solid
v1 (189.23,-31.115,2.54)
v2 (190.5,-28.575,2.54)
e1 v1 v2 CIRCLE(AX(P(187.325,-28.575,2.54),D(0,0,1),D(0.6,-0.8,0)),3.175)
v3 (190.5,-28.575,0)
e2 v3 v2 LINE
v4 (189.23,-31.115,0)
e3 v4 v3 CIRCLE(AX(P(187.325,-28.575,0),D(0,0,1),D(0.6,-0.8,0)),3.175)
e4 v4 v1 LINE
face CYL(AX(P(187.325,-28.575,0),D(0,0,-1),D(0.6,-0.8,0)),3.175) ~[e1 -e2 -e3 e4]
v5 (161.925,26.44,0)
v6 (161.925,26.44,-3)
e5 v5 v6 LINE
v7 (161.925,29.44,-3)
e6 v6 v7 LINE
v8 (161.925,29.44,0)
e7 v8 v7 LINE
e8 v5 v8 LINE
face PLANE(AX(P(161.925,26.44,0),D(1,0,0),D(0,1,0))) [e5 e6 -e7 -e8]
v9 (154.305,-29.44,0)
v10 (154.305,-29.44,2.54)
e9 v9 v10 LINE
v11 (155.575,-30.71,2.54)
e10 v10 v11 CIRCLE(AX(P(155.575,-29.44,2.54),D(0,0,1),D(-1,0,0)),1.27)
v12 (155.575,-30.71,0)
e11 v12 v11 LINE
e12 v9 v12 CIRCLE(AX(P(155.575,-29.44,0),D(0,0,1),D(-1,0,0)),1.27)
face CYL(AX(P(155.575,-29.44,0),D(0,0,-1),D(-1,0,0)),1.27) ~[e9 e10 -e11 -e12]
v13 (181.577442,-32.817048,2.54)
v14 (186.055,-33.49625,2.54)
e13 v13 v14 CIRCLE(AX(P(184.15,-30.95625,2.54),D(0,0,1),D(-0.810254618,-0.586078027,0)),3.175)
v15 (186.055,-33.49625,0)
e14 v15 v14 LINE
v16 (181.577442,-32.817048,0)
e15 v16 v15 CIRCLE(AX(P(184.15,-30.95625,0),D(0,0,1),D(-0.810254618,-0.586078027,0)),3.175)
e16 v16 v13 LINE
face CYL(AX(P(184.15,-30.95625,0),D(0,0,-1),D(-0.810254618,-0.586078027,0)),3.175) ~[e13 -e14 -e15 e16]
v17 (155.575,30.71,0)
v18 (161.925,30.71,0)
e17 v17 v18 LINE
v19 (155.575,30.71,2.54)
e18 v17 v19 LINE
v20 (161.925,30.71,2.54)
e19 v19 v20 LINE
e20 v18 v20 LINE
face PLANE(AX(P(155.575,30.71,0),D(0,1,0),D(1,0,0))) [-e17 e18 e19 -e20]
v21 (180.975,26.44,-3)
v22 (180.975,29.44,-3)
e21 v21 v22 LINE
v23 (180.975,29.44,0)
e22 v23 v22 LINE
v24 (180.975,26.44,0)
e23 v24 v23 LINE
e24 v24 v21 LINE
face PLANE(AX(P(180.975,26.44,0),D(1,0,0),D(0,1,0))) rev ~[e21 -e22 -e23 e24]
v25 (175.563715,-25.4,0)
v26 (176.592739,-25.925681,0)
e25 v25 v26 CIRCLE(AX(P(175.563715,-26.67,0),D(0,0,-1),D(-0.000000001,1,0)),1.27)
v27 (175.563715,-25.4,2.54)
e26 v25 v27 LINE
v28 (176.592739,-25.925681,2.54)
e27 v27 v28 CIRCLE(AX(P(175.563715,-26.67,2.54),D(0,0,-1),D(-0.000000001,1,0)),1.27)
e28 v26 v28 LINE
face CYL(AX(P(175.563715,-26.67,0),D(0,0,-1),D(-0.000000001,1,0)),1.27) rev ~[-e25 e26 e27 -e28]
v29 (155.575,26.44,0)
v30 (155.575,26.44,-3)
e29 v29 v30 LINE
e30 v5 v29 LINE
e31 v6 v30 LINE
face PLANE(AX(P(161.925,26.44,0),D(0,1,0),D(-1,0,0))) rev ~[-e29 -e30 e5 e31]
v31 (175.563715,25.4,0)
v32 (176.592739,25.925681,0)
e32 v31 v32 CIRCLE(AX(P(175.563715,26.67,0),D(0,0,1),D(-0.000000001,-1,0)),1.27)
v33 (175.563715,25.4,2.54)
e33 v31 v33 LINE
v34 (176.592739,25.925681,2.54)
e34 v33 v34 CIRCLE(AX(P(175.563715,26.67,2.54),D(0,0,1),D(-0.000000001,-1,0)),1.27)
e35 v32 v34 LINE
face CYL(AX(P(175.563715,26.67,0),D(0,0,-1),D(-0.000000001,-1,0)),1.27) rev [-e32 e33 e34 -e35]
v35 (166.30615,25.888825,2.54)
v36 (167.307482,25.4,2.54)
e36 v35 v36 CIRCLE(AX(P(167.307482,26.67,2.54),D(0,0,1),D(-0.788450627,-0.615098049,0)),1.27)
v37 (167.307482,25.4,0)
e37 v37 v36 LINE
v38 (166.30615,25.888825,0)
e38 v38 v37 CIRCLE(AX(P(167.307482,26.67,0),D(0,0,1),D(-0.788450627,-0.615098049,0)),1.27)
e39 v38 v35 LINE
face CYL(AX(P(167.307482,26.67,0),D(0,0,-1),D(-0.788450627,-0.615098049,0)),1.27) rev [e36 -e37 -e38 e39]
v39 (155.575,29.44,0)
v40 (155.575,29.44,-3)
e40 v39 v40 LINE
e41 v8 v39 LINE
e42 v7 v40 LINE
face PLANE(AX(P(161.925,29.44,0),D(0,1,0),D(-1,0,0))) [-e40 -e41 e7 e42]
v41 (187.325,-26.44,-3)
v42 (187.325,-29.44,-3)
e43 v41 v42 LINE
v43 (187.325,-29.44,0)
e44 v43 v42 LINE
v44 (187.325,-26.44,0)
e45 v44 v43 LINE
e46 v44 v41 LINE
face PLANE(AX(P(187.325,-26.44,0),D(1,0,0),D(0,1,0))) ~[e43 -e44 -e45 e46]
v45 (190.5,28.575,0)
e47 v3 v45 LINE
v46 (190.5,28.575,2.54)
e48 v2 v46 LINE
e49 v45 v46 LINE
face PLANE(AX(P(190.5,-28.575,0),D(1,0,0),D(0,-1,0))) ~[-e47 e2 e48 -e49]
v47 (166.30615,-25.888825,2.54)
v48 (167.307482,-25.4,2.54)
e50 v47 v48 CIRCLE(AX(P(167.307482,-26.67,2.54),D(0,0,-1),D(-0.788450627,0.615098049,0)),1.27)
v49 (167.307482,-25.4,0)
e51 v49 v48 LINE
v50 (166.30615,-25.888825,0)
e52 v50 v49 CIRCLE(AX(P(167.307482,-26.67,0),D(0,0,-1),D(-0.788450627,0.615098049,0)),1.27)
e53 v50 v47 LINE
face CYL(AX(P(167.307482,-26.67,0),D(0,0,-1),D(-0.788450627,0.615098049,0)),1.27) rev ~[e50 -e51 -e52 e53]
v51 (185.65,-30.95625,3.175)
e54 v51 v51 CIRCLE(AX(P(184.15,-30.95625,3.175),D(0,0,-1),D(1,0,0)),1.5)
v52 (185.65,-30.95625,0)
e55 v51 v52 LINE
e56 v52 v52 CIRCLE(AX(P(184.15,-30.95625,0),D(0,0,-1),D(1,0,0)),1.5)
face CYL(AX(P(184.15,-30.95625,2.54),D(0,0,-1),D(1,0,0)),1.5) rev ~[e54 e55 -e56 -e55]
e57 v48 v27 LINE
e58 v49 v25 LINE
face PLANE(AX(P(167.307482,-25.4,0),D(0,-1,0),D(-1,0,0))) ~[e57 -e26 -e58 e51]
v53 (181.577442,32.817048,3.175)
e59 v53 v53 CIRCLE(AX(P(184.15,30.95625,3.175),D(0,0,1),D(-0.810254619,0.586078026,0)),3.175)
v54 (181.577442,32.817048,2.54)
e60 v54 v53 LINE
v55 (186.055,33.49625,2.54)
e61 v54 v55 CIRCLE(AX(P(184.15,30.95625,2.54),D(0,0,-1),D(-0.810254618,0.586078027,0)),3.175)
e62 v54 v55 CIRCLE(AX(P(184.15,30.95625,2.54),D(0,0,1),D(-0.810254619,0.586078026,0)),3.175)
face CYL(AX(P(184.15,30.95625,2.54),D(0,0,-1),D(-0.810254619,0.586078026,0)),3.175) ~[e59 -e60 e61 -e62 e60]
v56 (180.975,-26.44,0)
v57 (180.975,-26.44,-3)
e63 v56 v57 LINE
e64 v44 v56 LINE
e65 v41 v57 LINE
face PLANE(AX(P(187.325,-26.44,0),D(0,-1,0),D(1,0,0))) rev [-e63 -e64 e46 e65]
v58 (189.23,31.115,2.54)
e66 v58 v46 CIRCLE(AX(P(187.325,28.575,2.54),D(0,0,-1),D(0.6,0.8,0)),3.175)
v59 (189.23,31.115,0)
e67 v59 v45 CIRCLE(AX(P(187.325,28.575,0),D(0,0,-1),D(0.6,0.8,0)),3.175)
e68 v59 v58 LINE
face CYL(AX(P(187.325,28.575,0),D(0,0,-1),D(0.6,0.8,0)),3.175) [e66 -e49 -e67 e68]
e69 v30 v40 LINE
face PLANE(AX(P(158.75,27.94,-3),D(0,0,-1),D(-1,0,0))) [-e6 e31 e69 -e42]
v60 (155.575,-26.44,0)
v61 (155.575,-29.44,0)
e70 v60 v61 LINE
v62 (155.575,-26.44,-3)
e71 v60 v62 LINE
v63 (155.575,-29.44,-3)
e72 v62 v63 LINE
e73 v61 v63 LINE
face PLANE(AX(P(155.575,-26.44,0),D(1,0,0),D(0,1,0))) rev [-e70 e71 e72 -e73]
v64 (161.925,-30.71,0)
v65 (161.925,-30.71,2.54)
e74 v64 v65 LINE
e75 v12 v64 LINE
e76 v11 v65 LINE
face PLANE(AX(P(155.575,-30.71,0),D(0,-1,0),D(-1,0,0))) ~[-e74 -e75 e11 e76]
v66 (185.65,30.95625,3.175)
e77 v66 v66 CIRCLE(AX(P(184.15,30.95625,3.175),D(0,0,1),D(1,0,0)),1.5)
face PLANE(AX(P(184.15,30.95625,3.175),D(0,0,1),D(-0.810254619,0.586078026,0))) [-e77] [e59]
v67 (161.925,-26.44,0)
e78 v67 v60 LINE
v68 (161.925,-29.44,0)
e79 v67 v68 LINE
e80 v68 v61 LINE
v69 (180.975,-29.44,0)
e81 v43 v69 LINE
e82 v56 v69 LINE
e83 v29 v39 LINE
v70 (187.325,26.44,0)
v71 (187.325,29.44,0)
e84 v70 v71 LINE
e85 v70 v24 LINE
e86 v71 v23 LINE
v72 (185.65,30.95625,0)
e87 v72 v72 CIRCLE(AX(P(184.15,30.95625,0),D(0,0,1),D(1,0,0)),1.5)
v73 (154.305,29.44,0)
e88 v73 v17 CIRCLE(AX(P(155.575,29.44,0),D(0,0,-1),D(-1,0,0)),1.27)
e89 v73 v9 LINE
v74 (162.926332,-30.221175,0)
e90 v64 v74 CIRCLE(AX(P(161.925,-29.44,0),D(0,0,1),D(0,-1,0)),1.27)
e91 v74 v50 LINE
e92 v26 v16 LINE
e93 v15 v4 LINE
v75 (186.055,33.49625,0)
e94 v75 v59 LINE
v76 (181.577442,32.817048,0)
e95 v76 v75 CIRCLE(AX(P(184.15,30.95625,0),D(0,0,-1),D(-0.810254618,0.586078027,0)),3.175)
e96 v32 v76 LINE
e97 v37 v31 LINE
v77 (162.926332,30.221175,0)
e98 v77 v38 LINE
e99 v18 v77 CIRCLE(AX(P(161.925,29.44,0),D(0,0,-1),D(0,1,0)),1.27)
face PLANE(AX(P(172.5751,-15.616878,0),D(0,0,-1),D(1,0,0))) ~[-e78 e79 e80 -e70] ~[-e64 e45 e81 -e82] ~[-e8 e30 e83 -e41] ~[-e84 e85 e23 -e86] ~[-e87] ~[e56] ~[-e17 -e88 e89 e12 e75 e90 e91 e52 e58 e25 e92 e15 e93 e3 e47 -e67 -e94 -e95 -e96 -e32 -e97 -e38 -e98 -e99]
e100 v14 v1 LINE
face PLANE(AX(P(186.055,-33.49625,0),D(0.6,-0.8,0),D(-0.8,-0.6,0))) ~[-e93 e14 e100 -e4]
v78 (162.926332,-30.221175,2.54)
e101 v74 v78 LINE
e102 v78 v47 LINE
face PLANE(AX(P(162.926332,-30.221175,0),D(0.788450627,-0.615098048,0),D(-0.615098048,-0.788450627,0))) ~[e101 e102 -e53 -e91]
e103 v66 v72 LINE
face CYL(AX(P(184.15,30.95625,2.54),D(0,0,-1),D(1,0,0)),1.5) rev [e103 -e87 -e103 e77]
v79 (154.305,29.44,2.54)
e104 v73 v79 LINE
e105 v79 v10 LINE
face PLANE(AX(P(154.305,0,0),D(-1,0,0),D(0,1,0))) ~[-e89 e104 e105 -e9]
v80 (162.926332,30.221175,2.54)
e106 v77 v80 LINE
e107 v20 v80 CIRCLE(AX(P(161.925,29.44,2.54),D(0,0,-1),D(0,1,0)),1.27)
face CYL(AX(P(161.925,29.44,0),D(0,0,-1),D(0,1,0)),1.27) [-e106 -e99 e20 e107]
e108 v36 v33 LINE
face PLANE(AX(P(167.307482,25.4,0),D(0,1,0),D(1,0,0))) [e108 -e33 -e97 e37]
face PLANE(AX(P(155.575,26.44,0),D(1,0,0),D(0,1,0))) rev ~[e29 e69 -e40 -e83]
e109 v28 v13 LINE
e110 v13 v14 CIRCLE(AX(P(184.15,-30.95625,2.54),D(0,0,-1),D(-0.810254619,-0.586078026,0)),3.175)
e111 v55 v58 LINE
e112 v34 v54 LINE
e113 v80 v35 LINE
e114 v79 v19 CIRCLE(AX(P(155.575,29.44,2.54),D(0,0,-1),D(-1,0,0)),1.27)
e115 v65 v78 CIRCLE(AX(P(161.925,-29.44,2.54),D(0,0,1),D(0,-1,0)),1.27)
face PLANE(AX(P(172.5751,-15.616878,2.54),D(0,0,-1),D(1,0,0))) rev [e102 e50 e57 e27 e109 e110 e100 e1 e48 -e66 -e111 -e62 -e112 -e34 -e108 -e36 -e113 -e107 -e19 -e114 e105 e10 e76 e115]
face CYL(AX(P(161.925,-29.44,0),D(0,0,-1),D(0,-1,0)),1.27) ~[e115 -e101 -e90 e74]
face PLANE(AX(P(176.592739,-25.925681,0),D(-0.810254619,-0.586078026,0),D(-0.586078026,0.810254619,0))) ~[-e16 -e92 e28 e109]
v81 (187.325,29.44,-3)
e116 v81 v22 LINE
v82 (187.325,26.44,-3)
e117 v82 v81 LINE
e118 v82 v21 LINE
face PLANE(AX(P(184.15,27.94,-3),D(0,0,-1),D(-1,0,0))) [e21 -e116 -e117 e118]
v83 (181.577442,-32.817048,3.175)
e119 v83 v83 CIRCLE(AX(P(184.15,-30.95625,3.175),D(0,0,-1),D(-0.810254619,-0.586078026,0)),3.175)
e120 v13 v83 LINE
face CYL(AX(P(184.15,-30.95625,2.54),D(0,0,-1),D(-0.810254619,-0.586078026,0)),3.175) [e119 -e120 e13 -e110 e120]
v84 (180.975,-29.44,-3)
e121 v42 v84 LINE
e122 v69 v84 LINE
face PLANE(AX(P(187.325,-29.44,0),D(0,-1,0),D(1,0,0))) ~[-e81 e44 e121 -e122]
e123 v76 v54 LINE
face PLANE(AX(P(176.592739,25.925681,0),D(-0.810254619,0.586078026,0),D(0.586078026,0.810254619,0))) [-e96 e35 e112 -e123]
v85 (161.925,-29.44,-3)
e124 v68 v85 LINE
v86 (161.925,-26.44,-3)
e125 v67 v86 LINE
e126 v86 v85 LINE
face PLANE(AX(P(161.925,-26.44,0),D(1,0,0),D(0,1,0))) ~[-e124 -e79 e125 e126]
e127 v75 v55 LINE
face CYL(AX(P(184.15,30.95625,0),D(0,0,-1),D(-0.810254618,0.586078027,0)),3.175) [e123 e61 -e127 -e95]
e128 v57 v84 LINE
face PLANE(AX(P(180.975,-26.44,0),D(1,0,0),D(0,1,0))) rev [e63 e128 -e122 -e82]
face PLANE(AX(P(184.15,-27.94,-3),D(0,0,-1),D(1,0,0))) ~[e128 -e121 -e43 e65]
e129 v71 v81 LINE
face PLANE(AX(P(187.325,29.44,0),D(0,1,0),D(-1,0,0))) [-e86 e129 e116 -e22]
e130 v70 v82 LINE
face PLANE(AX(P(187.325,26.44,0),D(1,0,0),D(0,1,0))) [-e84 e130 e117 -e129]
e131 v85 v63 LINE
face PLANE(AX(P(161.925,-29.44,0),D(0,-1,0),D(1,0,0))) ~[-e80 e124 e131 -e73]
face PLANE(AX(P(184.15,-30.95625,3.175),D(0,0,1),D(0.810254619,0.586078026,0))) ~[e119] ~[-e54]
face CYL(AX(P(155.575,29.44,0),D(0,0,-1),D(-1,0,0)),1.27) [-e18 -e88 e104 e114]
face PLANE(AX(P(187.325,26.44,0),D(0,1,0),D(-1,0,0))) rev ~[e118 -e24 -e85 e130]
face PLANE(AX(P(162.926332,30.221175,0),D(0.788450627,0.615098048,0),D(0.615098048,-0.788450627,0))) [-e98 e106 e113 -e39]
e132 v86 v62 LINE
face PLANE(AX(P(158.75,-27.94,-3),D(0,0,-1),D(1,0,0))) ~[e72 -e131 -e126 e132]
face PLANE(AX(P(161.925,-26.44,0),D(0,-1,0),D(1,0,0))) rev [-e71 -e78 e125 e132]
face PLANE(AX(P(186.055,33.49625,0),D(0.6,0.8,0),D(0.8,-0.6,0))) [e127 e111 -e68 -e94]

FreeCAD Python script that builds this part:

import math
import FreeCAD as App
import Part
import Sketcher
Q = App.Units.Quantity

doc = App.newDocument("Part")
body = doc.addObject("PartDesign::Body", "Body")

# Sketch on XY plane
sketch1 = body.newObject("Sketcher::SketchObject", "Sketch")
sketch1.AttachmentSupport = (doc.getObject("XY_Plane"), [""])
sketch1.MapMode = "FlatFace"
sketch1.addGeometry([
    Part.LineSegment(App.Vector(189.2, 31.1, 0), App.Vector(186.1, 33.5, 0)),  # 0
    Part.ArcOfCircle(Part.Circle(App.Vector(184.2, 31, 0), App.Vector(0, 0, 1), 3.2), math.radians(53), math.radians(144)),  # 1
    Part.LineSegment(App.Vector(181.6, 32.8, 0), App.Vector(176.6, 25.9, 0)),  # 2
    Part.ArcOfCircle(Part.Circle(App.Vector(175.6, 26.7, 0), App.Vector(0, 0, 1), 1.3), math.radians(-90), math.radians(-36)),  # 3
    Part.LineSegment(App.Vector(175.6, 25.4, 0), App.Vector(167.3, 25.4, 0)),  # 4
    Part.ArcOfCircle(Part.Circle(App.Vector(167.3, 26.7, 0), App.Vector(0, 0, 1), 1.3), math.radians(-142), math.radians(-90)),  # 5
    Part.LineSegment(App.Vector(166.3, 25.9, 0), App.Vector(162.9, 30.2, 0)),  # 6
    Part.ArcOfCircle(Part.Circle(App.Vector(161.9, 29.4, 0), App.Vector(0, 0, 1), 1.3), math.radians(38), math.radians(90)),  # 7
    Part.LineSegment(App.Vector(161.9, 30.7, 0), App.Vector(155.6, 30.7, 0)),  # 8
    Part.ArcOfCircle(Part.Circle(App.Vector(155.6, 29.4, 0), App.Vector(0, 0, 1), 1.3), math.radians(90), math.radians(180)),  # 9
    Part.LineSegment(App.Vector(154.3, 29.4, 0), App.Vector(154.3, 0, 0)),  # 10
    Part.LineSegment(App.Vector(154.3, 0, 0), App.Vector(190.5, 0, 0)),  # 11
    Part.LineSegment(App.Vector(190.5, 0, 0), App.Vector(190.5, 28.6, 0)),  # 12
    Part.ArcOfCircle(Part.Circle(App.Vector(187.3, 28.6, 0), App.Vector(0, 0, 1), 3.2), math.radians(0), math.radians(53)),  # 13
    Part.Circle(App.Vector(184.2, 31, 0), App.Vector(0, 0, 1), 1.5),  # 14
], False)
sketch1.addConstraint([
    Sketcher.Constraint("Tangent", 0, 2, 1, 1),
    Sketcher.Constraint("Tangent", 1, 2, 2, 1),
    Sketcher.Constraint("Tangent", 2, 2, 3, 2),
    Sketcher.Constraint("Tangent", 3, 1, 4, 1),
    Sketcher.Constraint("Tangent", 4, 2, 5, 2),
    Sketcher.Constraint("Tangent", 5, 1, 6, 1),
    Sketcher.Constraint("Tangent", 6, 2, 7, 1),
    Sketcher.Constraint("Tangent", 7, 2, 8, 1),
    Sketcher.Constraint("Tangent", 8, 2, 9, 1),
    Sketcher.Constraint("Tangent", 9, 2, 10, 1),
    Sketcher.Constraint("Coincident", 10, 2, 11, 1),
    Sketcher.Constraint("Coincident", 11, 2, 12, 1),
    Sketcher.Constraint("Tangent", 12, 2, 13, 1),
    Sketcher.Constraint("Tangent", 13, 2, 0, 1),
    Sketcher.Constraint("Horizontal", 4),
    Sketcher.Constraint("Horizontal", 8),
    Sketcher.Constraint("Vertical", 10),
    Sketcher.Constraint("Horizontal", 11),
    Sketcher.Constraint("Vertical", 12),
    Sketcher.Constraint("Coincident", 14, 3, 1, 3),
    Sketcher.Constraint("Equal", 3, 5),
    Sketcher.Constraint("Equal", 5, 7),
    Sketcher.Constraint("Equal", 7, 9),
    Sketcher.Constraint("Equal", 1, 13),
    Sketcher.Constraint("PointOnObject", 10, 2, -1),
    Sketcher.Constraint("Radius", 3, Q("0.05 in")),
    Sketcher.Constraint("DistanceY", -1, 1, 3, 1, Q("1 in")),
    Sketcher.Constraint("Radius", 1, Q("0.125 in")),
    Sketcher.Constraint("DistanceX", 7, 3, 13, 3, Q("1 in")),
    Sketcher.Constraint("DistanceX", 8, 2, 8, 1, Q("0.25 in")),
    Sketcher.Constraint("DistanceX", -1, 1, 11, 2, Q("7.5 in")),
    Sketcher.Constraint("DistanceY", 14, 3, 0, 2, Q("0.1 in")),
    Sketcher.Constraint("DistanceX", 14, 3, 13, 2, Q("0.2 in")),
    Sketcher.Constraint("Diameter", 14, Q("3 mm")),
    Sketcher.Constraint("DistanceY", 12, 1, 12, 2, Q("1.125 in")),
    Sketcher.Constraint("DistanceY", 10, 2, 10, 1, Q("29.44 mm")),
    Sketcher.Constraint("DistanceX", 4, 2, 4, 1, Q("8.256233 mm")),
    Sketcher.Constraint("DistanceX", -1, 1, 1, 2, Q("181.577442 mm")),
])
pad1 = body.newObject("PartDesign::Pad", "Pad")
pad1.Profile = sketch1
pad1.Length = Q("0.1 in")

# Sketch on XY plane
sketch2 = body.newObject("Sketcher::SketchObject", "Sketch001")
sketch2.AttachmentSupport = (doc.getObject("XY_Plane"), [""])
sketch2.MapMode = "FlatFace"
sketch2.AttachmentOffset = App.Placement(App.Vector(0, 0, 0.1 * 25.4), App.Rotation())
sketch2.addGeometry([
    Part.Circle(App.Vector(184.2, 31, 0), App.Vector(0, 0, 1), 3.2),
    Part.Circle(App.Vector(184.2, 31, 0), App.Vector(0, 0, 1), 1.5),
], False)
sketch2.addConstraint([
    Sketcher.Constraint("Coincident", 1, 3, 0, 3),
    Sketcher.Constraint("Diameter", 0, Q("0.25 in")),
    Sketcher.Constraint("Diameter", 1, Q("3 mm")),
    Sketcher.Constraint("DistanceX", -1, 1, 0, 3, Q("7.25 in")),
    Sketcher.Constraint("DistanceY", -1, 1, 0, 3, Q("1.21875 in")),
])
pad2 = body.newObject("PartDesign::Pad", "Pad001")
pad2.Profile = sketch2
pad2.Length = Q("0.025 in")

# Sketch on XY plane
sketch3 = body.newObject("Sketcher::SketchObject", "Sketch002")
sketch3.AttachmentSupport = (doc.getObject("XY_Plane"), [""])
sketch3.MapMode = "FlatFace"
sketch3.addGeometry([
    Part.LineSegment(App.Vector(187.3, 29.4, 0), App.Vector(187.3, 26.4, 0)),  # 0
    Part.LineSegment(App.Vector(187.3, 26.4, 0), App.Vector(181, 26.4, 0)),  # 1
    Part.LineSegment(App.Vector(181, 26.4, 0), App.Vector(181, 29.4, 0)),  # 2
    Part.LineSegment(App.Vector(181, 29.4, 0), App.Vector(187.3, 29.4, 0)),  # 3
    Part.LineSegment(App.Vector(161.9, 29.4, 0), App.Vector(161.9, 26.4, 0)),  # 4
    Part.LineSegment(App.Vector(161.9, 26.4, 0), App.Vector(155.6, 26.4, 0)),  # 5
    Part.LineSegment(App.Vector(155.6, 26.4, 0), App.Vector(155.6, 29.4, 0)),  # 6
    Part.LineSegment(App.Vector(155.6, 29.4, 0), App.Vector(161.9, 29.4, 0)),  # 7
], False)
sketch3.addConstraint([
    Sketcher.Constraint("Coincident", 0, 2, 1, 1),
    Sketcher.Constraint("Coincident", 1, 2, 2, 1),
    Sketcher.Constraint("Coincident", 2, 2, 3, 1),
    Sketcher.Constraint("Coincident", 3, 2, 0, 1),
    Sketcher.Constraint("Coincident", 4, 2, 5, 1),
    Sketcher.Constraint("Coincident", 5, 2, 6, 1),
    Sketcher.Constraint("Coincident", 6, 2, 7, 1),
    Sketcher.Constraint("Coincident", 7, 2, 4, 1),
    Sketcher.Constraint("Vertical", 0),
    Sketcher.Constraint("Horizontal", 1),
    Sketcher.Constraint("Vertical", 2),
    Sketcher.Constraint("Horizontal", 3),
    Sketcher.Constraint("Vertical", 4),
    Sketcher.Constraint("Horizontal", 5),
    Sketcher.Constraint("Vertical", 6),
    Sketcher.Constraint("Horizontal", 7),
    Sketcher.Constraint("Horizontal", 1, 2, 4, 2),
    Sketcher.Constraint("Horizontal", 3, 2, 6, 2),
    Sketcher.Constraint("Equal", 3, 5),
    Sketcher.Constraint("DistanceX", 4, 2, 0, 2, Q("1 in")),
    Sketcher.Constraint("DistanceX", 1, 2, 1, 1, Q("0.25 in")),
    Sketcher.Constraint("DistanceX", -1, 1, 0, 2, Q("7.375 in")),
    Sketcher.Constraint("DistanceY", 0, 2, 0, 1, Q("3 mm")),
    Sketcher.Constraint("DistanceY", -1, 1, 0, 2, Q("26.44 mm")),
])
pad3 = body.newObject("PartDesign::Pad", "Pad002")
pad3.Profile = sketch3
pad3.Length = 3
pad3.Reversed = True
body2 = doc.addObject("PartDesign::Body", "Body001")
doc.recompute()

body2.BaseFeature = body
doc.recompute()

mirroring = doc.addObject("Part::Mirroring", "Mirroring")
mirroring.Source = body
mirroring.Base = App.Vector(0, 0, 0)
mirroring.Normal = App.Vector(0, 1, 0)
body3 = doc.addObject("PartDesign::Body", "Body002")
body3.BaseFeature = mirroring
boolean = body2.newObject("PartDesign::Boolean", "Boolean")
boolean.Type = "Fuse"
boolean.addObjects([body3])
doc.recompute()
mirroring.Visibility = False

doc.recompute()
